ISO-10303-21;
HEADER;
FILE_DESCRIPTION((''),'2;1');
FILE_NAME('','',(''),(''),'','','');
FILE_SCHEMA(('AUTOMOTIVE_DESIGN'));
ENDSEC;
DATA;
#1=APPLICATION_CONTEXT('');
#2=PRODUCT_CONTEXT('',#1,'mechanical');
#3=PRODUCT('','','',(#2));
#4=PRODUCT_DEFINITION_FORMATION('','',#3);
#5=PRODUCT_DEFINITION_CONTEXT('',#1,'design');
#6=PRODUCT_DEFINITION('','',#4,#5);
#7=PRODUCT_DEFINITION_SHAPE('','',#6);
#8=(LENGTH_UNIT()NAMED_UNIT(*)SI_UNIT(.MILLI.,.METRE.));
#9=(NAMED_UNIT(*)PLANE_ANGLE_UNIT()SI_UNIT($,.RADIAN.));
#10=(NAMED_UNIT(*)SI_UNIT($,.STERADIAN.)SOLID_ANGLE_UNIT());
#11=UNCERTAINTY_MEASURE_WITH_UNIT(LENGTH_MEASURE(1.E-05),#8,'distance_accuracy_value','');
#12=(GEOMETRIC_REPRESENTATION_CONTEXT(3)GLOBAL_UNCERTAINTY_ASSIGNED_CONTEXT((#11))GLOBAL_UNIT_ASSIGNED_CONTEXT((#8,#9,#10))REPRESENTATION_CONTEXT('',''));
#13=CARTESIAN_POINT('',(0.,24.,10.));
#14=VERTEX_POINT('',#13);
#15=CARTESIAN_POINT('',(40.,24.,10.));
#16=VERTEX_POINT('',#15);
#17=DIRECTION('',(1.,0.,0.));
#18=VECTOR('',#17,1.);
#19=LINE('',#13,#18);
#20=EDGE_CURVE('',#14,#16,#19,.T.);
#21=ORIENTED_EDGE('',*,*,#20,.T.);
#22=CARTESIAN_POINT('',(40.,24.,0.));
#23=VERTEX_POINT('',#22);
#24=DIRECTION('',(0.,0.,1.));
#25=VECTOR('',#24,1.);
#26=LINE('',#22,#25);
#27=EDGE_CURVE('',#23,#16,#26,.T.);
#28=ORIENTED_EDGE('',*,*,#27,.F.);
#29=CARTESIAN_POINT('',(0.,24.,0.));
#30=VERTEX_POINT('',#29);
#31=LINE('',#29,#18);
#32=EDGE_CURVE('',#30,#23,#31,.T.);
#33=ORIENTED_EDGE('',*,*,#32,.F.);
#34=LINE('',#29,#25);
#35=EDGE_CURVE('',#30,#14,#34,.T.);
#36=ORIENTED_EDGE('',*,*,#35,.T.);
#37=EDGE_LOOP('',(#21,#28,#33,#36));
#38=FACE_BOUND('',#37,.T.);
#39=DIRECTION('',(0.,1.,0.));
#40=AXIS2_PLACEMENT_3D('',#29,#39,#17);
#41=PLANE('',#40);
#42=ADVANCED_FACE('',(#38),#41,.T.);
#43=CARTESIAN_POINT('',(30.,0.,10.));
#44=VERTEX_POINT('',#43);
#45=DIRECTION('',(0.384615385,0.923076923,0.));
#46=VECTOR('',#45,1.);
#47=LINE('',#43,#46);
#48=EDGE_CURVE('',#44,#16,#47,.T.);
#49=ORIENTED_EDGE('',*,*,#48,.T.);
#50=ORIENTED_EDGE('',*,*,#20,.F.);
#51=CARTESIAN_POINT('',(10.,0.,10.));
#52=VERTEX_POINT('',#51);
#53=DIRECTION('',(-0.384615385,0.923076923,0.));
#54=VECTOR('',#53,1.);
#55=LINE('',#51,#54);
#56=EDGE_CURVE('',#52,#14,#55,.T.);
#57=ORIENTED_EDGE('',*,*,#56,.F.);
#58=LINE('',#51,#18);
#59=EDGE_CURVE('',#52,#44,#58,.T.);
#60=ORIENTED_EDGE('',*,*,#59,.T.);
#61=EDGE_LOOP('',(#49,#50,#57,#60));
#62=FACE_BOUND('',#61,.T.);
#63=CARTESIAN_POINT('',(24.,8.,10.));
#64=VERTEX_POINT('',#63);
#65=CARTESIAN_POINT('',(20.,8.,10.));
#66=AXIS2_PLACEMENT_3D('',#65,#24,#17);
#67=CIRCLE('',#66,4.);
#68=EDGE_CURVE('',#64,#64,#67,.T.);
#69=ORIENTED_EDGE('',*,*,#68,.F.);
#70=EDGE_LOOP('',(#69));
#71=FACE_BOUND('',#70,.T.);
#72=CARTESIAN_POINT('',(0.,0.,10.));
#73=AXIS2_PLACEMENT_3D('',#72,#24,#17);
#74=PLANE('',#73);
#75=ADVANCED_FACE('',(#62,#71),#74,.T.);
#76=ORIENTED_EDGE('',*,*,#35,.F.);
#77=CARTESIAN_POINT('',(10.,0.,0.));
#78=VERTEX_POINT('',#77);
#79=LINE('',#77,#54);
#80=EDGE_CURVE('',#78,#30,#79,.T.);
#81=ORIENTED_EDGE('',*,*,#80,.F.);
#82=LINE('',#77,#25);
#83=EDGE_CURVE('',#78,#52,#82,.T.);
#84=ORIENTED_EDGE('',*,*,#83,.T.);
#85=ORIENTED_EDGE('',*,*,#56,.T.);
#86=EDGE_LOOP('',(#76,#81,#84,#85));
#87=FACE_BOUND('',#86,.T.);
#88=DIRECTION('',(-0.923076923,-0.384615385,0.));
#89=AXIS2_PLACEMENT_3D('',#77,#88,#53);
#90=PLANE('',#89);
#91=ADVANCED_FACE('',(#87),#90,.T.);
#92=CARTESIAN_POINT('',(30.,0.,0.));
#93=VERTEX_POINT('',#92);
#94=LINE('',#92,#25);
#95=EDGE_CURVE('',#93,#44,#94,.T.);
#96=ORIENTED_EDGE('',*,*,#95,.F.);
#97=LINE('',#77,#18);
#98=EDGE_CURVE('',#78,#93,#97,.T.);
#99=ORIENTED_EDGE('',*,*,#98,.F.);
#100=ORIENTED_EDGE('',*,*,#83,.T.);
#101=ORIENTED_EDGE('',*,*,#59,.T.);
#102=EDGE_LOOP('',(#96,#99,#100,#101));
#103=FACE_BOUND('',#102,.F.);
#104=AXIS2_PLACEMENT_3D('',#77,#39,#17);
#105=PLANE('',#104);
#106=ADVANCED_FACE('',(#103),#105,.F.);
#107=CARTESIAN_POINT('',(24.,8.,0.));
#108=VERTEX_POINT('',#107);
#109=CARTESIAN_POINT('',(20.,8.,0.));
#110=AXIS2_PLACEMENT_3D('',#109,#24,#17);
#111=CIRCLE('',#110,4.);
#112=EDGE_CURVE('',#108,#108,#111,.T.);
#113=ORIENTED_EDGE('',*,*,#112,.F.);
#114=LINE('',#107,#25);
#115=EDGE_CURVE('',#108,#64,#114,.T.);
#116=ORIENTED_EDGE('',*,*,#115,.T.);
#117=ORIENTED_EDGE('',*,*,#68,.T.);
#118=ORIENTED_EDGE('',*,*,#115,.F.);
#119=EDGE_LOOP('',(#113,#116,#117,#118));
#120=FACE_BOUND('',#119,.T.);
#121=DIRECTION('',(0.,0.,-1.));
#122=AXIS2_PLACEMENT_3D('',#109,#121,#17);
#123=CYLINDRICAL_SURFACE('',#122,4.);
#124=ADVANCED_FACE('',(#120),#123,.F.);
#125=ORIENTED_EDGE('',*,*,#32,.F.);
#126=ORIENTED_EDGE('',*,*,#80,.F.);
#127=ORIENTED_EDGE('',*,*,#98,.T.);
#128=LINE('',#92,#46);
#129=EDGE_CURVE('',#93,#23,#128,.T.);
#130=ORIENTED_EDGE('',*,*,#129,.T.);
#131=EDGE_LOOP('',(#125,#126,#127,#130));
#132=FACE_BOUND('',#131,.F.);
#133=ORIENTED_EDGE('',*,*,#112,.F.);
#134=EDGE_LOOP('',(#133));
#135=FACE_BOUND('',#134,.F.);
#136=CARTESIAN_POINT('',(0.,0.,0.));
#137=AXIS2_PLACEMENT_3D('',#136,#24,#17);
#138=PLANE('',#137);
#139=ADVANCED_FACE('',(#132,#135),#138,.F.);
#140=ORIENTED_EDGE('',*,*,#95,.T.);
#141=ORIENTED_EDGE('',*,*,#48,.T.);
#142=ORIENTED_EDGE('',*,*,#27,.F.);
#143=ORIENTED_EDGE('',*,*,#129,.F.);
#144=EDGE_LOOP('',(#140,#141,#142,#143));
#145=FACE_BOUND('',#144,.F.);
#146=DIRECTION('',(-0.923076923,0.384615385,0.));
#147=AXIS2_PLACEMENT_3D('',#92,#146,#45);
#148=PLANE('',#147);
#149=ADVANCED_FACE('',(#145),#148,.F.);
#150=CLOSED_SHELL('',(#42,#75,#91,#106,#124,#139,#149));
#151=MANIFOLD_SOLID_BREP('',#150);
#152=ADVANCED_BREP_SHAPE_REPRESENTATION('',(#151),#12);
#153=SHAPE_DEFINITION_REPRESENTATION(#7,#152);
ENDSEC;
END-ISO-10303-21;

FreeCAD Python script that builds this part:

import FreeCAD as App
import Part
import Sketcher
from FreeCAD import Vector
Q = App.Units.Quantity

doc = App.newDocument("Part")
body = doc.addObject("PartDesign::Body", "Body")

sketch1 = doc.addObject("Sketcher::SketchObject", "Sketch")
body.addObject(sketch1)
sketch1.AttachmentSupport = (doc.XY_Plane, [""])
sketch1.MapMode = "FlatFace"
sketch1.addGeometry([
    Part.LineSegment(Vector(0, 24, 0), Vector(10, 0, 0)),
    Part.LineSegment(Vector(10, 0, 0), Vector(30, 0, 0)),
    Part.LineSegment(Vector(30, 0, 0), Vector(40, 24, 0)),
    Part.LineSegment(Vector(40, 24, 0), Vector(0, 24, 0)),
    Part.Circle(Vector(20, 8, 0), Vector(0, 0, 1), 4),
], False)
sketch1.addConstraint([
    Sketcher.Constraint("Coincident", 0, 2, 1, 1),
    Sketcher.Constraint("Coincident", 1, 2, 2, 1),
    Sketcher.Constraint("Coincident", 2, 2, 3, 1),
    Sketcher.Constraint("Coincident", 3, 2, 0, 1),
    Sketcher.Constraint("Horizontal", 1),
    Sketcher.Constraint("Horizontal", 3),
    Sketcher.Constraint("PointOnObject", 0, 2, -1),
    Sketcher.Constraint("PointOnObject", 3, 2, -2),
    Sketcher.Constraint("Equal", 0, 2),
    Sketcher.Constraint("Diameter", 4, Q("8 mm")),
    Sketcher.Constraint("DistanceX", 1, 1, 1, 2, Q("20 mm")),
    Sketcher.Constraint("DistanceX", 3, 2, 3, 1, Q("40 mm")),
    Sketcher.Constraint("DistanceX", -1, 1, 4, 3, Q("20 mm")),
    Sketcher.Constraint("DistanceY", -1, 1, 4, 3, Q("8 mm")),
    Sketcher.Constraint("DistanceY", -1, 1, 2, 2, Q("24 mm")),
])
pad1 = doc.addObject("PartDesign::Pad", "Pad")
body.addObject(pad1)
pad1.Profile = sketch1
pad1.Length = 10

doc.recompute()
